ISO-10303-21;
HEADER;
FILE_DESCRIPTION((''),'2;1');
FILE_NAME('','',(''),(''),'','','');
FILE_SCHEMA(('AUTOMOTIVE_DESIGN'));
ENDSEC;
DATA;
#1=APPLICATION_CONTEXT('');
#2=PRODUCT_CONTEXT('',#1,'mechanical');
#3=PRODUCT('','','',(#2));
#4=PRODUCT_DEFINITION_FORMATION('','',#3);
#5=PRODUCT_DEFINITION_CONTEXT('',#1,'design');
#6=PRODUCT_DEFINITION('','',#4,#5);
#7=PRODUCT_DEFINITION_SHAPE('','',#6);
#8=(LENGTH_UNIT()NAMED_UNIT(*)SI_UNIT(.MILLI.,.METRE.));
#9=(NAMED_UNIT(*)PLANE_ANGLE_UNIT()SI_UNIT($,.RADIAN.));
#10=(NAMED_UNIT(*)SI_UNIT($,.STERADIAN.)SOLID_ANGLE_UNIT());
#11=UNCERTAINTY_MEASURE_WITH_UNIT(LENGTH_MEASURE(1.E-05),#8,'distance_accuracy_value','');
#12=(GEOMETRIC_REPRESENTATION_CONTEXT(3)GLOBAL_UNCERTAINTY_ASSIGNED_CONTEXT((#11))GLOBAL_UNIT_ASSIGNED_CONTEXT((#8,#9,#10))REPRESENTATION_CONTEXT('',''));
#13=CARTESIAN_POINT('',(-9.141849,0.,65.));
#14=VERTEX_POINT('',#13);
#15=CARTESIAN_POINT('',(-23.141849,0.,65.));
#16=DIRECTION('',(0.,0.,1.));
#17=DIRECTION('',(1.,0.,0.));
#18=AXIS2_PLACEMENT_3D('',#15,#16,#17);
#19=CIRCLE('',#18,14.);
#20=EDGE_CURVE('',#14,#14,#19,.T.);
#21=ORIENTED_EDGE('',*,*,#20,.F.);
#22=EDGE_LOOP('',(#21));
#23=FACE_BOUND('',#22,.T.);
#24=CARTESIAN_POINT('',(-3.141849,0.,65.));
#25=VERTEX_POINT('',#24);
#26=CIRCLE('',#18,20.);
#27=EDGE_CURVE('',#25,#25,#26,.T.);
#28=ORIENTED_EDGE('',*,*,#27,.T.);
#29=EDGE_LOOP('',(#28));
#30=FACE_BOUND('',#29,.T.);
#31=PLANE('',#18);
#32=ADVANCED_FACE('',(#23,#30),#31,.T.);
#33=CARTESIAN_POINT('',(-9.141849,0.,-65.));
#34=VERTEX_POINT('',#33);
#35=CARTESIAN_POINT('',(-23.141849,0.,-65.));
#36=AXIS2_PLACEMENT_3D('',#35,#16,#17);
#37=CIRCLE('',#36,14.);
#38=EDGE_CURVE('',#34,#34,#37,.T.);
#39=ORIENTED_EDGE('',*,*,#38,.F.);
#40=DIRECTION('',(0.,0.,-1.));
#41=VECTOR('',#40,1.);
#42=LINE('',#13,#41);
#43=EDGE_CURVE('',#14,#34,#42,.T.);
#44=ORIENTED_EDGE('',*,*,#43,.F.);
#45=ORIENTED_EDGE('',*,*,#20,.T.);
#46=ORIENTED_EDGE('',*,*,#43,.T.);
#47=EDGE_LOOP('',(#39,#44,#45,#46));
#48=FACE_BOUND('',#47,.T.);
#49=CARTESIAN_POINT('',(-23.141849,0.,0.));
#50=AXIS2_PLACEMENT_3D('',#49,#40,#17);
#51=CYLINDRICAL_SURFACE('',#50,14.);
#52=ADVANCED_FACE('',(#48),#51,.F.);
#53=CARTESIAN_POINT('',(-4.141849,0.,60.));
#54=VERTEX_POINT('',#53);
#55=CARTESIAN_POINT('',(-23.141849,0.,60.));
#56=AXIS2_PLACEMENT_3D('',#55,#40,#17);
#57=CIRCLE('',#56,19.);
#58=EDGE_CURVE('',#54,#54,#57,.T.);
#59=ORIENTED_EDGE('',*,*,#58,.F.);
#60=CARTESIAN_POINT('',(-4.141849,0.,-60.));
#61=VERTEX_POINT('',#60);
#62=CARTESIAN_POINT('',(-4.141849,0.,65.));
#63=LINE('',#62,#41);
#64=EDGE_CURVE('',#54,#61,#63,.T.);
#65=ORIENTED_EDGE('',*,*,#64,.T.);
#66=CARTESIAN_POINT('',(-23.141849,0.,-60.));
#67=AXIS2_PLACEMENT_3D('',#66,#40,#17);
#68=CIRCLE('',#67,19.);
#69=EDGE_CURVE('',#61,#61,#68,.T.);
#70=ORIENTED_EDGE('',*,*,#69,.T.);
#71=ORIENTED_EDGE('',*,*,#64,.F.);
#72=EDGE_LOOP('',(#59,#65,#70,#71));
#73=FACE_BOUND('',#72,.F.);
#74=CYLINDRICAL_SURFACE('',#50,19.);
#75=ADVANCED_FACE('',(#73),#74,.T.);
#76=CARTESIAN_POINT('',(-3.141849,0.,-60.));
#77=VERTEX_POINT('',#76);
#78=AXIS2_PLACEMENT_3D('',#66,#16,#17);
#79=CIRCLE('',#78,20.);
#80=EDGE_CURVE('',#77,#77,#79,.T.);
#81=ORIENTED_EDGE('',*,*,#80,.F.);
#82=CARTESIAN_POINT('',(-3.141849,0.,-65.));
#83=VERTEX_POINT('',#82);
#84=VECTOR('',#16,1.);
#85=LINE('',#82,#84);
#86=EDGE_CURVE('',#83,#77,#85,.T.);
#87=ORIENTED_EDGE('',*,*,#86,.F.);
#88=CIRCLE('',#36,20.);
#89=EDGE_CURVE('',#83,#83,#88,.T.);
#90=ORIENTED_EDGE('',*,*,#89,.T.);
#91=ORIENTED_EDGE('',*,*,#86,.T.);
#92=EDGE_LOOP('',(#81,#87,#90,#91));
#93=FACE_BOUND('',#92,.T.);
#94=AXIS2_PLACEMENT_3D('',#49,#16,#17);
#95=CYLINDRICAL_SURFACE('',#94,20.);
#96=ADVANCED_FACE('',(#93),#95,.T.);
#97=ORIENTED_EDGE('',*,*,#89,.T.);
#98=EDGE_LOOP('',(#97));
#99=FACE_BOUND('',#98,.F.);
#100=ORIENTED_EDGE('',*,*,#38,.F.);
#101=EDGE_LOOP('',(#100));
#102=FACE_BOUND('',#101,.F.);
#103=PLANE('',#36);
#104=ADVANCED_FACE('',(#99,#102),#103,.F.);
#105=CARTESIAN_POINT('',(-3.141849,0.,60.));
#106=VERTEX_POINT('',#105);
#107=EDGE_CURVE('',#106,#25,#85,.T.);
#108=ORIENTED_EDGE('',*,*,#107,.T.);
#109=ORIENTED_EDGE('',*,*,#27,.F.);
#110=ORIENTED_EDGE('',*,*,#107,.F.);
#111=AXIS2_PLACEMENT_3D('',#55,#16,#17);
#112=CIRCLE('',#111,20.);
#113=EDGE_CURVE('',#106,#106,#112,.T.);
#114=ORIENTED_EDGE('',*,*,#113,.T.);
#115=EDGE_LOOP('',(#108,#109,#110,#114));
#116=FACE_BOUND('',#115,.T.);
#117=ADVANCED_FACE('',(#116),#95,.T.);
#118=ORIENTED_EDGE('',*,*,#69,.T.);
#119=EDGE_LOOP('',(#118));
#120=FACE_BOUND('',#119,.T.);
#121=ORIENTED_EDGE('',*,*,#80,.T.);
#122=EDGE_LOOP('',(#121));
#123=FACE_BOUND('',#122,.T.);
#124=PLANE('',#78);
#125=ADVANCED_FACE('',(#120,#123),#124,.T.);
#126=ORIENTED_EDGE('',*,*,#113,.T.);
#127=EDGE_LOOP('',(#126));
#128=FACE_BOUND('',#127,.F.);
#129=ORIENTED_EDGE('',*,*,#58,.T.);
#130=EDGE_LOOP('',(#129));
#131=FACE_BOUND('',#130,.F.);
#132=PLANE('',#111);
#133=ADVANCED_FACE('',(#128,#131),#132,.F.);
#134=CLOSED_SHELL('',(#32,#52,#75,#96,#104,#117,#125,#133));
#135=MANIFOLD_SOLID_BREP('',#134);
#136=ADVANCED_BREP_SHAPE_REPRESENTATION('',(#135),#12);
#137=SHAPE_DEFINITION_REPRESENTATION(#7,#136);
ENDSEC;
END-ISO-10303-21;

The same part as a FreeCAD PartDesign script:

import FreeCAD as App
import Part
import Sketcher

V = App.Vector


def faces_at(feature, points):
    """Names of the faces that lie closest to the given points."""
    faces = feature.Shape.Faces
    near = lambda p: min(range(len(faces)), key=lambda i: faces[i].distToShape(Part.Vertex(*p))[0])
    return sorted({f"Face{near(p) + 1}" for p in points})

doc = App.newDocument("Part")
body = doc.addObject("PartDesign::Body", "Body")

# Sketch on XY plane
sketch1 = body.newObject("Sketcher::SketchObject", "Sketch")
sketch1.AttachmentSupport = (doc.getObject("XY_Plane"), [""])
sketch1.MapMode = "FlatFace"
sketch1.addGeometry(Part.Circle(V(-23, 0, 0), V(0, 0, 1), 20), False)
sketch1.addGeometry(Part.Circle(V(-23, 0, 0), V(0, 0, 1), 14), False)
sketch1.addConstraint(Sketcher.Constraint("Coincident", 1, 3, 0, 3))
sketch1.addConstraint(Sketcher.Constraint("PointOnObject", 0, 3, -1))
sketch1.addConstraint(Sketcher.Constraint("Diameter", 0, 40.0))
sketch1.addConstraint(Sketcher.Constraint("Diameter", 1, 28.0))
sketch1.addConstraint(Sketcher.Constraint("DistanceX", 0, 3, -1, 1, 23.141849))
pad1 = body.newObject("PartDesign::Pad", "Pad")
pad1.Profile = sketch1
pad1.Length = 130
pad1.Midplane = True
doc.recompute()

thickness = body.newObject("PartDesign::Thickness", "Thickness")
thickness.Base = (pad1, faces_at(pad1, [(-43.142, 0, 0)]))
thickness.Value = 5
thickness.Reversed = True
thickness.Join = "Arc"

doc.recompute()
